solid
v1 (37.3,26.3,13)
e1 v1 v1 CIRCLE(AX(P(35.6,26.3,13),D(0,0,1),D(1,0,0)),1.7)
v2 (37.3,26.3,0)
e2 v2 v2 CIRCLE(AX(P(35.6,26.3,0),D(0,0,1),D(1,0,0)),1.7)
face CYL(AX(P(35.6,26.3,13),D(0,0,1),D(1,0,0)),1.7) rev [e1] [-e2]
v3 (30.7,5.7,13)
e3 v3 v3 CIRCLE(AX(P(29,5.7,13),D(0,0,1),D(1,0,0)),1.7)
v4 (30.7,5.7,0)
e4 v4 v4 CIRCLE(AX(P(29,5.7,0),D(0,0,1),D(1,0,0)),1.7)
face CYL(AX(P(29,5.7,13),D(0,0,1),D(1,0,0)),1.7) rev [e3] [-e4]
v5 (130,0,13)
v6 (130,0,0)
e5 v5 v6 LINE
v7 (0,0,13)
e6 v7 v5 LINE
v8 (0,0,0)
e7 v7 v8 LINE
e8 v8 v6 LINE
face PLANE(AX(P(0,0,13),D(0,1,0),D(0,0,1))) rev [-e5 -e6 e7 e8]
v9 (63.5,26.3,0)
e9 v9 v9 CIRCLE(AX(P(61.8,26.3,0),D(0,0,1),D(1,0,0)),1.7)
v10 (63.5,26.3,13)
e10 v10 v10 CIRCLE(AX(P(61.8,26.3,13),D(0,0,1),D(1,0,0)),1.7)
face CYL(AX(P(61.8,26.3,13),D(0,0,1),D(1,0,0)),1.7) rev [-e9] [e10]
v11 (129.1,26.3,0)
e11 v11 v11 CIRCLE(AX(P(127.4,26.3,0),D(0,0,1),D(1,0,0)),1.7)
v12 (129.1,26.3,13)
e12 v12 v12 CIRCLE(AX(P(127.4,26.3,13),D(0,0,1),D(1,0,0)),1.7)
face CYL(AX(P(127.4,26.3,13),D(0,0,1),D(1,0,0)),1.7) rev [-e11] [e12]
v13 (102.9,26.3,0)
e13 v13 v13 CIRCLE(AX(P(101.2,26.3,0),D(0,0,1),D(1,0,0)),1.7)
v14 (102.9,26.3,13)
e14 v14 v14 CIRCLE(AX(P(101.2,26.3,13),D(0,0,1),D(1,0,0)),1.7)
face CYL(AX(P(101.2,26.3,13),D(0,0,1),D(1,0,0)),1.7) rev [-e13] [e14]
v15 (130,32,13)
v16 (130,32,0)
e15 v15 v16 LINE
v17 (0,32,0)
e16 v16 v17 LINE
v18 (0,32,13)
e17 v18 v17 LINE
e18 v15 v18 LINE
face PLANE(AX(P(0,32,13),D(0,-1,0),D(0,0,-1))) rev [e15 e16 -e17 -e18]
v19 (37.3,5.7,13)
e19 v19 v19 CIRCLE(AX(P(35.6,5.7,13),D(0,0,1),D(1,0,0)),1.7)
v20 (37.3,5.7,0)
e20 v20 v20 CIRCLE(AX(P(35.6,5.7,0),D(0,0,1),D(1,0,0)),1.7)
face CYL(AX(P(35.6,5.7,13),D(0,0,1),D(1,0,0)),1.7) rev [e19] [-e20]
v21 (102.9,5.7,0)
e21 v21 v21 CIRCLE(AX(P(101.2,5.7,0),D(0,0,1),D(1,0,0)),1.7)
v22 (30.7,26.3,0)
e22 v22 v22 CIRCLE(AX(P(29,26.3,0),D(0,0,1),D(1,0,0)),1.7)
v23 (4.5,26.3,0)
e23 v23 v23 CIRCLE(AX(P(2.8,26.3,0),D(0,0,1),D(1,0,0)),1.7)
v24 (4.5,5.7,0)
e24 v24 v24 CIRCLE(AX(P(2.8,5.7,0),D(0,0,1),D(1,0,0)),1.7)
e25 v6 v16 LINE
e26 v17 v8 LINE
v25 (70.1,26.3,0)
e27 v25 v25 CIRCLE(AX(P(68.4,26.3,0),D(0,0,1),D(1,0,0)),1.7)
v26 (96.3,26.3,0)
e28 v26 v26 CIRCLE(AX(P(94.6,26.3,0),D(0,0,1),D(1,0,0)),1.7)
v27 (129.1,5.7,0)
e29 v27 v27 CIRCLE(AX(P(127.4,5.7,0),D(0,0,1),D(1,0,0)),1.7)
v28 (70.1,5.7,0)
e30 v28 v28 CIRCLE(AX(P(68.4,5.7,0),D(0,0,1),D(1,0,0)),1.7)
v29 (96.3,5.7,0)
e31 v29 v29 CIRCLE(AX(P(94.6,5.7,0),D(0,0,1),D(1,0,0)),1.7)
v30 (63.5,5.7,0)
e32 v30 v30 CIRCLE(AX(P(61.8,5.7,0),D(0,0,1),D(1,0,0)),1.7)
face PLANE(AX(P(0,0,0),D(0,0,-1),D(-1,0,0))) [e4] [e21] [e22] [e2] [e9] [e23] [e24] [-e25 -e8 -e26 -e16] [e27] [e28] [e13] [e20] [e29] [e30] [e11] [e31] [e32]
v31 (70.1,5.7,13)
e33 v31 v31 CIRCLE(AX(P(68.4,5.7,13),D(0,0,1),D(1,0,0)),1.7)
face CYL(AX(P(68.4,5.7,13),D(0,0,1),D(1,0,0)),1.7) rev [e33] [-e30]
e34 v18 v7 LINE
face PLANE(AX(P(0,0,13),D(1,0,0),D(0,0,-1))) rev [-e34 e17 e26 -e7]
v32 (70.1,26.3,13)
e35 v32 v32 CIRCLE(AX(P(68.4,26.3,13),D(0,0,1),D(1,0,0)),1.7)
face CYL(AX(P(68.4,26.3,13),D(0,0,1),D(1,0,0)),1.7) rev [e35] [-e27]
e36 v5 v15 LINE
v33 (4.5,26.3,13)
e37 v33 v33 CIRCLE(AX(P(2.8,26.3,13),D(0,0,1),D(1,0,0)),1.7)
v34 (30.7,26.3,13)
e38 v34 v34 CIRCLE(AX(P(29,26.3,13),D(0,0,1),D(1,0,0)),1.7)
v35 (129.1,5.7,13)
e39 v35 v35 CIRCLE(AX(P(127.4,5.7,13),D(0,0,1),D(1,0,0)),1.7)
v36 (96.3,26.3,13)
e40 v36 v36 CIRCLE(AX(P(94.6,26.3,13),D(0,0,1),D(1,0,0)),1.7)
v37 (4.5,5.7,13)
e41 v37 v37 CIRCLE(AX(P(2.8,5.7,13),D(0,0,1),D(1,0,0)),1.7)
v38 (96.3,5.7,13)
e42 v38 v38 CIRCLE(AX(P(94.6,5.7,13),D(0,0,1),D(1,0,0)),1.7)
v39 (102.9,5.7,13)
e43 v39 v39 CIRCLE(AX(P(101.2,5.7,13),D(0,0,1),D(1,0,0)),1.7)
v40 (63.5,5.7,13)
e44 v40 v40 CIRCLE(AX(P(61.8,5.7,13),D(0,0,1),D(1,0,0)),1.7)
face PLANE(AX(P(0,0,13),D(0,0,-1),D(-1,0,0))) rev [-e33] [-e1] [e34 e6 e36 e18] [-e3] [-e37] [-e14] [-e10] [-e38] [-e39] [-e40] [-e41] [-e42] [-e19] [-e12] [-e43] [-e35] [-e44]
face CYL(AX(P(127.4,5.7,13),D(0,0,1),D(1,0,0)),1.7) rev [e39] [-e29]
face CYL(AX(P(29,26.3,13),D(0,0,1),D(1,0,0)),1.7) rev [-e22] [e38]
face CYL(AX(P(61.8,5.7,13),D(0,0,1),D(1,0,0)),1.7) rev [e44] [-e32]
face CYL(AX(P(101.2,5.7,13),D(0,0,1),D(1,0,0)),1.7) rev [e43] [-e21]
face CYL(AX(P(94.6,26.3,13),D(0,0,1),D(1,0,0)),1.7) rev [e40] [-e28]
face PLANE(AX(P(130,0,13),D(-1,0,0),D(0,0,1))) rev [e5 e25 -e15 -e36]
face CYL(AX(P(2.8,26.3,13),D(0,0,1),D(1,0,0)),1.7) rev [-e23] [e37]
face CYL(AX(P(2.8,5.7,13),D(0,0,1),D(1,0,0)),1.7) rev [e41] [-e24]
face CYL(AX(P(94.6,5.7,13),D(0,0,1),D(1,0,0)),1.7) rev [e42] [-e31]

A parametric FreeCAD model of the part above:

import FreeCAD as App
import Part
import Sketcher
Q = App.Units.Quantity


def add_polygon(sketch, points):
    """Adds a closed chain of lines whose ends are joined by coincident constraints."""
    first, n = sketch.GeometryCount, len(points)
    for a, b in zip(points, points[1:] + points[:1]):
        sketch.addGeometry(Part.LineSegment(App.Vector(*a, 0), App.Vector(*b, 0)), False)
    for i in range(n):
        sketch.addConstraint(Sketcher.Constraint("Coincident", first + i, 2, first + (i + 1) % n, 1))

doc = App.newDocument("Part")
body = doc.addObject("PartDesign::Body", "Body")

sketch1 = doc.addObject("Sketcher::SketchObject", "Sketch")
body.addObject(sketch1)
sketch1.AttachmentSupport = (doc.XY_Plane, [""])
sketch1.MapMode = "FlatFace"
add_polygon(sketch1, [(0, 32), (0, 0), (130, 0), (130, 32)])
sketch1.addGeometry(Part.Circle(App.Vector(2.8, 5.7, 0), App.Vector(0, 0, 1), 1.5), False)
sketch1.addGeometry(Part.Circle(App.Vector(29, 5.7, 0), App.Vector(0, 0, 1), 1.5), False)
sketch1.addGeometry(Part.Circle(App.Vector(2.8, 26.3, 0), App.Vector(0, 0, 1), 1.5), False)
sketch1.addGeometry(Part.Circle(App.Vector(29, 26.3, 0), App.Vector(0, 0, 1), 1.5), False)
sketch1.addConstraint(Sketcher.Constraint("Vertical", 0))
sketch1.addConstraint(Sketcher.Constraint("Horizontal", 1))
sketch1.addConstraint(Sketcher.Constraint("Vertical", 2))
sketch1.addConstraint(Sketcher.Constraint("Horizontal", 3))
sketch1.addConstraint(Sketcher.Constraint("Coincident", 0, 2, -1, 1))
sketch1.addConstraint(Sketcher.Constraint("Equal", 4, 5))
sketch1.addConstraint(Sketcher.Constraint("Equal", 5, 6))
sketch1.addConstraint(Sketcher.Constraint("Equal", 6, 7))
sketch1.addConstraint(Sketcher.Constraint("Horizontal", 4, 3, 5, 3))
sketch1.addConstraint(Sketcher.Constraint("Horizontal", 6, 3, 7, 3))
sketch1.addConstraint(Sketcher.Constraint("Vertical", 4, 3, 6, 3))
sketch1.addConstraint(Sketcher.Constraint("Vertical", 5, 3, 7, 3))
sketch1.addConstraint(Sketcher.Constraint("Diameter", 4, Q("3 mm")))
sketch1.addConstraint(Sketcher.Constraint("DistanceX", 1, 1, 1, 2, Q("130 mm")))
sketch1.addConstraint(Sketcher.Constraint("DistanceY", 0, 2, 0, 1, Q("32 mm")))
sketch1.addConstraint(Sketcher.Constraint("DistanceX", -1, 1, 5, 3, Q("29 mm")))
sketch1.addConstraint(Sketcher.Constraint("DistanceX", -1, 1, 4, 3, Q("2.8 mm")))
sketch1.addConstraint(Sketcher.Constraint("DistanceY", -1, 1, 4, 3, Q("5.7 mm")))
sketch1.addConstraint(Sketcher.Constraint("DistanceY", -1, 1, 6, 3, Q("26.3 mm")))
pad1 = doc.addObject("PartDesign::Pad", "Pad")
body.addObject(pad1)
pad1.Profile = sketch1
pad1.Length = 13

sketch2 = doc.addObject("Sketcher::SketchObject", "Sketch001")
body.addObject(sketch2)
sketch2.AttachmentSupport = (doc.XY_Plane, [""])
sketch2.MapMode = "FlatFace"
sketch2.AttachmentOffset = App.Placement(App.Vector(0, 0, 13), App.Rotation())
sketch2.addGeometry(Part.Circle(App.Vector(2.8, 26.3, 0), App.Vector(0, 0, 1), 1.7), False)
sketch2.addGeometry(Part.Circle(App.Vector(29, 26.3, 0), App.Vector(0, 0, 1), 1.7), False)
sketch2.addGeometry(Part.Circle(App.Vector(2.8, 5.7, 0), App.Vector(0, 0, 1), 1.7), False)
sketch2.addGeometry(Part.Circle(App.Vector(29, 5.7, 0), App.Vector(0, 0, 1), 1.7), False)
sketch2.addConstraint(Sketcher.Constraint("Equal", 0, 1))
sketch2.addConstraint(Sketcher.Constraint("Equal", 1, 2))
sketch2.addConstraint(Sketcher.Constraint("Equal", 2, 3))
sketch2.addConstraint(Sketcher.Constraint("Horizontal", 0, 3, 1, 3))
sketch2.addConstraint(Sketcher.Constraint("Horizontal", 2, 3, 3, 3))
sketch2.addConstraint(Sketcher.Constraint("Vertical", 0, 3, 2, 3))
sketch2.addConstraint(Sketcher.Constraint("Vertical", 1, 3, 3, 3))
sketch2.addConstraint(Sketcher.Constraint("Diameter", 0, Q("3.4 mm")))
sketch2.addConstraint(Sketcher.Constraint("DistanceX", -1, 1, 1, 3, Q("29 mm")))
sketch2.addConstraint(Sketcher.Constraint("DistanceX", -1, 1, 0, 3, Q("2.8 mm")))
sketch2.addConstraint(Sketcher.Constraint("DistanceY", -1, 1, 0, 3, Q("26.3 mm")))
sketch2.addConstraint(Sketcher.Constraint("DistanceY", -1, 1, 2, 3, Q("5.7 mm")))
doc.recompute()
hole = doc.addObject("PartDesign::Hole", "Hole")
body.addObject(hole)
hole.Profile = sketch2
hole.ThreadType = "None"
hole.Diameter = 3.4
hole.DepthType = "Dimension"
hole.Depth = 13
hole.DrillPoint = "Flat"
doc.recompute()

linearpattern = doc.addObject("PartDesign::LinearPattern", "LinearPattern")
body.addObject(linearpattern)
linearpattern.Originals = [hole]
linearpattern.Direction = (doc.X_Axis, [""])
linearpattern.Mode = "offset"
linearpattern.Offset = 32.8
linearpattern.Occurrences = 4
body.Tip = linearpattern

doc.recompute()
